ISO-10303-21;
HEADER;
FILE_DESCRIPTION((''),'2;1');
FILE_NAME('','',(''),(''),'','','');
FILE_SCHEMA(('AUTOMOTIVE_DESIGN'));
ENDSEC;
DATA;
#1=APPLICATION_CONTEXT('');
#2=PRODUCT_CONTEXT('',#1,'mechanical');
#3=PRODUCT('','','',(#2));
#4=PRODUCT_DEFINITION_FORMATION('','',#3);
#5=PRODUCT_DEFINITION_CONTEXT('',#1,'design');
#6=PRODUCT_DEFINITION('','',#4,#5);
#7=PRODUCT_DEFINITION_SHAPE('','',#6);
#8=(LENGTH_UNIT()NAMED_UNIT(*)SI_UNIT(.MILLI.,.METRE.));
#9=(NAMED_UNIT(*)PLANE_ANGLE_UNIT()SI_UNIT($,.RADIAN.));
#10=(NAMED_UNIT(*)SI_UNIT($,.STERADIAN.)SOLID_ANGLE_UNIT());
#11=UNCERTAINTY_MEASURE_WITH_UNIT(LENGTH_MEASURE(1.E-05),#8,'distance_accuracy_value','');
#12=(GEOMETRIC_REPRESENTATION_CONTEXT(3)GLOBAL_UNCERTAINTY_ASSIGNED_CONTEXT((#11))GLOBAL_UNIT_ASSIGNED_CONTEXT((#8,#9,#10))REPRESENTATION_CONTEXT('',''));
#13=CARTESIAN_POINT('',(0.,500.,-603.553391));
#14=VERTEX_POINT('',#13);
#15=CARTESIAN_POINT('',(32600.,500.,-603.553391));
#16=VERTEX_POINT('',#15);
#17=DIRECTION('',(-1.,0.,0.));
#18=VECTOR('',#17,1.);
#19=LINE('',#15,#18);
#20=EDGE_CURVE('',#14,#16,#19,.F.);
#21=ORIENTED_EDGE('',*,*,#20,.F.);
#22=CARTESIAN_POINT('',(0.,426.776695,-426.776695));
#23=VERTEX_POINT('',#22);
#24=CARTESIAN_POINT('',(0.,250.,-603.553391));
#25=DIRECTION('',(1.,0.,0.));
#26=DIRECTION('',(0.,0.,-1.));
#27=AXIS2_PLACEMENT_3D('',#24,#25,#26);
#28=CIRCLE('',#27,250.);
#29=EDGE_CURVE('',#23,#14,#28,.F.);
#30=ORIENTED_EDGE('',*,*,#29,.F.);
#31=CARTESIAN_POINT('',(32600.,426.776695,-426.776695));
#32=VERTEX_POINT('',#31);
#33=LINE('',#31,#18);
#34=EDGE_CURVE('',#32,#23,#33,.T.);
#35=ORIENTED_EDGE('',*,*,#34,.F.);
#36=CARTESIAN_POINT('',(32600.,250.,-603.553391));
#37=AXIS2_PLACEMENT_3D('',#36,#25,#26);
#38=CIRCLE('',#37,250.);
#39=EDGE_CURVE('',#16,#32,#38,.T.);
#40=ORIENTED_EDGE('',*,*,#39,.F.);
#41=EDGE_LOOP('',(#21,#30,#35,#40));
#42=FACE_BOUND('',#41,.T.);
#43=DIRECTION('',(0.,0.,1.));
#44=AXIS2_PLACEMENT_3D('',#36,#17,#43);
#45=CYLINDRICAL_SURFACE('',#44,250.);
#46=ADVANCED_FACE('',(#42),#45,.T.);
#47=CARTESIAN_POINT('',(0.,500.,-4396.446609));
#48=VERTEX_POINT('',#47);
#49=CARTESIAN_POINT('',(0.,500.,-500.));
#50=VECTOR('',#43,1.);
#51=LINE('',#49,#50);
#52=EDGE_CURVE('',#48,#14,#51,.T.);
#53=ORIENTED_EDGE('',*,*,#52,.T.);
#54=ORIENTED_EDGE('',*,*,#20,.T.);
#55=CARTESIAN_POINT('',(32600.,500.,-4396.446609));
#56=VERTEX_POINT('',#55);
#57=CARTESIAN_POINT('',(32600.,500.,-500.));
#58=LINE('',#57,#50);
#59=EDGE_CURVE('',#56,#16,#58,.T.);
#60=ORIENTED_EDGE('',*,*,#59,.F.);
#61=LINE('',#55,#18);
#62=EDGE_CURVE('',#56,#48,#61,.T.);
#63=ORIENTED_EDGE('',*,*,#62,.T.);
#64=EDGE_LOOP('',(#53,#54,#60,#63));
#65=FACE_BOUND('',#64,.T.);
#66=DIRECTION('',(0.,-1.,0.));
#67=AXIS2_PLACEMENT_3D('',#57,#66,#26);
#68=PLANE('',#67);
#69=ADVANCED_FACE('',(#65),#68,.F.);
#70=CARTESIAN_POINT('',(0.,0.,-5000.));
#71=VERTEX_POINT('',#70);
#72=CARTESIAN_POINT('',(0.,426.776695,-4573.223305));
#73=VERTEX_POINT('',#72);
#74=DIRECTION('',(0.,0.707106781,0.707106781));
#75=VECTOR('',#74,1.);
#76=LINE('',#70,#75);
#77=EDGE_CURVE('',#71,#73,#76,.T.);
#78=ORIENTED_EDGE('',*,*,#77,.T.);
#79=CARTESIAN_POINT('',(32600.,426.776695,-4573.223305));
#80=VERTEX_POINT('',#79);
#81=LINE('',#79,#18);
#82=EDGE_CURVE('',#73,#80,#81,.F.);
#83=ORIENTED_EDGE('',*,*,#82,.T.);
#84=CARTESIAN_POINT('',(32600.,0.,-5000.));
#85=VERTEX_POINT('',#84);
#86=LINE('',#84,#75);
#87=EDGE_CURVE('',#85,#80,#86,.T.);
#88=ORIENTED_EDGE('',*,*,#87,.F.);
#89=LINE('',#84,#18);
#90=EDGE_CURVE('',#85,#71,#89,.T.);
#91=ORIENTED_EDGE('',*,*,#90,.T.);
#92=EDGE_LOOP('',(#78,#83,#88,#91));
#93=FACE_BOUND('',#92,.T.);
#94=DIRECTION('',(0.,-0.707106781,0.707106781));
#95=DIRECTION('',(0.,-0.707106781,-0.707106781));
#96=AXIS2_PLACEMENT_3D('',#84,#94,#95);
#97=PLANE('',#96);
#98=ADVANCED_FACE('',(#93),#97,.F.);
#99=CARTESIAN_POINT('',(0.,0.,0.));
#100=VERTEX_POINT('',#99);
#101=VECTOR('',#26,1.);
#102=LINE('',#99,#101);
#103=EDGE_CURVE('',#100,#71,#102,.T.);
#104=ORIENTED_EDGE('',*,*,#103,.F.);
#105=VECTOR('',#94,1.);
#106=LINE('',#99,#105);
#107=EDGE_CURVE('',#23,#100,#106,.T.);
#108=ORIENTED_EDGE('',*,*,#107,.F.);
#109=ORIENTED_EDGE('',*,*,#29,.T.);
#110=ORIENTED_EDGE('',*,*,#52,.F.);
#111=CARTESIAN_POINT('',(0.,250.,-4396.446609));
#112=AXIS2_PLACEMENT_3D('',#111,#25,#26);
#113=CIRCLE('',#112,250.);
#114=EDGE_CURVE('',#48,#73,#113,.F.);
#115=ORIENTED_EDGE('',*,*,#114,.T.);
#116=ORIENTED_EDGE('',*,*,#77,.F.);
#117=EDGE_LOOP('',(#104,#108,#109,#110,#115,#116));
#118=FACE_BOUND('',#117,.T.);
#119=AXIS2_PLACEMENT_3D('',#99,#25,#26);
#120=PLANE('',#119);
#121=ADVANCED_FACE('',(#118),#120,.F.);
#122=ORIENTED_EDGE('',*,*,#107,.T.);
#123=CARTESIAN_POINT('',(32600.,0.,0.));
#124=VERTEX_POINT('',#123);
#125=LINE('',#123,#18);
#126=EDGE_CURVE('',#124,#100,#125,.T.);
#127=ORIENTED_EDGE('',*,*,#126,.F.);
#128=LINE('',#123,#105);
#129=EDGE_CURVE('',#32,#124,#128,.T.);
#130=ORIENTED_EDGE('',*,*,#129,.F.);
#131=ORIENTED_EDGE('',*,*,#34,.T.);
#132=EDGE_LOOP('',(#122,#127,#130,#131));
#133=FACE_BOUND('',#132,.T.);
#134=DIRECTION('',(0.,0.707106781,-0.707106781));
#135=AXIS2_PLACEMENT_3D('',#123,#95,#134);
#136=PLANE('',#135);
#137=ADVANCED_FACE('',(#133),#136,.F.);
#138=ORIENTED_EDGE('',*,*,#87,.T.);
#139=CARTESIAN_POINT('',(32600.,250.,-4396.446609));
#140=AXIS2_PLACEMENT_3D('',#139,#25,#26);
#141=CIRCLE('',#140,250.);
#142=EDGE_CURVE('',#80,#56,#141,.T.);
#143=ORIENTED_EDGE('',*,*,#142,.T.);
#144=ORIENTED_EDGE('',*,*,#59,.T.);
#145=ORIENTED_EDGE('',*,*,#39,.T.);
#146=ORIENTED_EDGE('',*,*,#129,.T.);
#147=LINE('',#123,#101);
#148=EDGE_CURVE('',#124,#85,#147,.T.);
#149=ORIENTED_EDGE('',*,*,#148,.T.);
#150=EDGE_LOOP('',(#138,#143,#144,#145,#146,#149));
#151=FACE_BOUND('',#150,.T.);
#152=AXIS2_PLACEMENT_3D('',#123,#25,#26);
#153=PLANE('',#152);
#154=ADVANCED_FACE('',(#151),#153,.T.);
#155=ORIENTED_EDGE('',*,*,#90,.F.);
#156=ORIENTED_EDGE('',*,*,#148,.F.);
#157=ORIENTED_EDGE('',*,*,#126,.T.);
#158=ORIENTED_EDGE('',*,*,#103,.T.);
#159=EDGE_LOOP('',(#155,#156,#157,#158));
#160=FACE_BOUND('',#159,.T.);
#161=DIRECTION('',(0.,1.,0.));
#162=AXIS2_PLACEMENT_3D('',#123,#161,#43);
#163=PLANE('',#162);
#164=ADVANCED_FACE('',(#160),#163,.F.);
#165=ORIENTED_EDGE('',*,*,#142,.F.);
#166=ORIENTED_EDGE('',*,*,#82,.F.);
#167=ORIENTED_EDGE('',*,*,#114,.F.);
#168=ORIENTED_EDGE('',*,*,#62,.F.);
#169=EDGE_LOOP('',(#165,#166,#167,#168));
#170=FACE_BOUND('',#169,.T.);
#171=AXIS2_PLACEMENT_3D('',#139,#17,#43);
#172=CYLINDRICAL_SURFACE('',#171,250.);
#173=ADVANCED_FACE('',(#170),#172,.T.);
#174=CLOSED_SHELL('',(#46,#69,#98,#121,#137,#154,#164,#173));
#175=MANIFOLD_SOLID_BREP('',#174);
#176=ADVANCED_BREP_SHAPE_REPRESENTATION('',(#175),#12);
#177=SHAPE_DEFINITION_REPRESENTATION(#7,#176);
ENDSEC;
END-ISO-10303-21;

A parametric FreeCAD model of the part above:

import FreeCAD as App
import Part
import Sketcher

V = App.Vector


def edges_at(feature, points):
    """Names of the edges that pass closest to the given points."""
    edges = feature.Shape.Edges
    near = lambda p: min(range(len(edges)), key=lambda i: edges[i].distToShape(Part.Vertex(*p))[0])
    return sorted({f"Edge{near(p) + 1}" for p in points})


def add_polygon(sketch, points):
    """Adds a closed chain of lines whose ends are joined by coincident constraints."""
    first, n = sketch.GeometryCount, len(points)
    for a, b in zip(points, points[1:] + points[:1]):
        sketch.addGeometry(Part.LineSegment(App.Vector(*a, 0), App.Vector(*b, 0)), False)
    for i in range(n):
        sketch.addConstraint(Sketcher.Constraint("Coincident", first + i, 2, first + (i + 1) % n, 1))

doc = App.newDocument("Part")
body = doc.addObject("PartDesign::Body", "Body")

# Sketch on YZ plane
sketch1 = doc.addObject("Sketcher::SketchObject", "Sketch")
body.addObject(sketch1)
sketch1.AttachmentSupport = (doc.YZ_Plane, [""])
sketch1.MapMode = "FlatFace"
add_polygon(sketch1, [(0, 0), (0, -5000), (500, -4500), (500, -500)])  # lines 0-3
sketch1.addConstraint(Sketcher.Constraint("Vertical", 0))
sketch1.addConstraint(Sketcher.Constraint("Vertical", 2))
sketch1.addConstraint(Sketcher.Constraint("Coincident", 3, 2, -1, 1))
sketch1.addConstraint(Sketcher.Constraint("Perpendicular", 1, 3))
sketch1.addConstraint(Sketcher.Constraint("Equal", 1, 3))
sketch1.addConstraint(Sketcher.Constraint("DistanceY", 0, 2, 0, 1, 5000.0))
sketch1.addConstraint(Sketcher.Constraint("DistanceY", 2, 1, 2, 2, 4000.0))
pad1 = doc.addObject("PartDesign::Pad", "Pad")
body.addObject(pad1)
pad1.Profile = sketch1
pad1.Length = 32600
doc.recompute()

fillet = doc.addObject("PartDesign::Fillet", "Fillet")
body.addObject(fillet)
fillet.Base = (pad1, edges_at(pad1, [(16300, 500, -500), (16300, 500, -4500)]))
fillet.Radius = 250

doc.recompute()
